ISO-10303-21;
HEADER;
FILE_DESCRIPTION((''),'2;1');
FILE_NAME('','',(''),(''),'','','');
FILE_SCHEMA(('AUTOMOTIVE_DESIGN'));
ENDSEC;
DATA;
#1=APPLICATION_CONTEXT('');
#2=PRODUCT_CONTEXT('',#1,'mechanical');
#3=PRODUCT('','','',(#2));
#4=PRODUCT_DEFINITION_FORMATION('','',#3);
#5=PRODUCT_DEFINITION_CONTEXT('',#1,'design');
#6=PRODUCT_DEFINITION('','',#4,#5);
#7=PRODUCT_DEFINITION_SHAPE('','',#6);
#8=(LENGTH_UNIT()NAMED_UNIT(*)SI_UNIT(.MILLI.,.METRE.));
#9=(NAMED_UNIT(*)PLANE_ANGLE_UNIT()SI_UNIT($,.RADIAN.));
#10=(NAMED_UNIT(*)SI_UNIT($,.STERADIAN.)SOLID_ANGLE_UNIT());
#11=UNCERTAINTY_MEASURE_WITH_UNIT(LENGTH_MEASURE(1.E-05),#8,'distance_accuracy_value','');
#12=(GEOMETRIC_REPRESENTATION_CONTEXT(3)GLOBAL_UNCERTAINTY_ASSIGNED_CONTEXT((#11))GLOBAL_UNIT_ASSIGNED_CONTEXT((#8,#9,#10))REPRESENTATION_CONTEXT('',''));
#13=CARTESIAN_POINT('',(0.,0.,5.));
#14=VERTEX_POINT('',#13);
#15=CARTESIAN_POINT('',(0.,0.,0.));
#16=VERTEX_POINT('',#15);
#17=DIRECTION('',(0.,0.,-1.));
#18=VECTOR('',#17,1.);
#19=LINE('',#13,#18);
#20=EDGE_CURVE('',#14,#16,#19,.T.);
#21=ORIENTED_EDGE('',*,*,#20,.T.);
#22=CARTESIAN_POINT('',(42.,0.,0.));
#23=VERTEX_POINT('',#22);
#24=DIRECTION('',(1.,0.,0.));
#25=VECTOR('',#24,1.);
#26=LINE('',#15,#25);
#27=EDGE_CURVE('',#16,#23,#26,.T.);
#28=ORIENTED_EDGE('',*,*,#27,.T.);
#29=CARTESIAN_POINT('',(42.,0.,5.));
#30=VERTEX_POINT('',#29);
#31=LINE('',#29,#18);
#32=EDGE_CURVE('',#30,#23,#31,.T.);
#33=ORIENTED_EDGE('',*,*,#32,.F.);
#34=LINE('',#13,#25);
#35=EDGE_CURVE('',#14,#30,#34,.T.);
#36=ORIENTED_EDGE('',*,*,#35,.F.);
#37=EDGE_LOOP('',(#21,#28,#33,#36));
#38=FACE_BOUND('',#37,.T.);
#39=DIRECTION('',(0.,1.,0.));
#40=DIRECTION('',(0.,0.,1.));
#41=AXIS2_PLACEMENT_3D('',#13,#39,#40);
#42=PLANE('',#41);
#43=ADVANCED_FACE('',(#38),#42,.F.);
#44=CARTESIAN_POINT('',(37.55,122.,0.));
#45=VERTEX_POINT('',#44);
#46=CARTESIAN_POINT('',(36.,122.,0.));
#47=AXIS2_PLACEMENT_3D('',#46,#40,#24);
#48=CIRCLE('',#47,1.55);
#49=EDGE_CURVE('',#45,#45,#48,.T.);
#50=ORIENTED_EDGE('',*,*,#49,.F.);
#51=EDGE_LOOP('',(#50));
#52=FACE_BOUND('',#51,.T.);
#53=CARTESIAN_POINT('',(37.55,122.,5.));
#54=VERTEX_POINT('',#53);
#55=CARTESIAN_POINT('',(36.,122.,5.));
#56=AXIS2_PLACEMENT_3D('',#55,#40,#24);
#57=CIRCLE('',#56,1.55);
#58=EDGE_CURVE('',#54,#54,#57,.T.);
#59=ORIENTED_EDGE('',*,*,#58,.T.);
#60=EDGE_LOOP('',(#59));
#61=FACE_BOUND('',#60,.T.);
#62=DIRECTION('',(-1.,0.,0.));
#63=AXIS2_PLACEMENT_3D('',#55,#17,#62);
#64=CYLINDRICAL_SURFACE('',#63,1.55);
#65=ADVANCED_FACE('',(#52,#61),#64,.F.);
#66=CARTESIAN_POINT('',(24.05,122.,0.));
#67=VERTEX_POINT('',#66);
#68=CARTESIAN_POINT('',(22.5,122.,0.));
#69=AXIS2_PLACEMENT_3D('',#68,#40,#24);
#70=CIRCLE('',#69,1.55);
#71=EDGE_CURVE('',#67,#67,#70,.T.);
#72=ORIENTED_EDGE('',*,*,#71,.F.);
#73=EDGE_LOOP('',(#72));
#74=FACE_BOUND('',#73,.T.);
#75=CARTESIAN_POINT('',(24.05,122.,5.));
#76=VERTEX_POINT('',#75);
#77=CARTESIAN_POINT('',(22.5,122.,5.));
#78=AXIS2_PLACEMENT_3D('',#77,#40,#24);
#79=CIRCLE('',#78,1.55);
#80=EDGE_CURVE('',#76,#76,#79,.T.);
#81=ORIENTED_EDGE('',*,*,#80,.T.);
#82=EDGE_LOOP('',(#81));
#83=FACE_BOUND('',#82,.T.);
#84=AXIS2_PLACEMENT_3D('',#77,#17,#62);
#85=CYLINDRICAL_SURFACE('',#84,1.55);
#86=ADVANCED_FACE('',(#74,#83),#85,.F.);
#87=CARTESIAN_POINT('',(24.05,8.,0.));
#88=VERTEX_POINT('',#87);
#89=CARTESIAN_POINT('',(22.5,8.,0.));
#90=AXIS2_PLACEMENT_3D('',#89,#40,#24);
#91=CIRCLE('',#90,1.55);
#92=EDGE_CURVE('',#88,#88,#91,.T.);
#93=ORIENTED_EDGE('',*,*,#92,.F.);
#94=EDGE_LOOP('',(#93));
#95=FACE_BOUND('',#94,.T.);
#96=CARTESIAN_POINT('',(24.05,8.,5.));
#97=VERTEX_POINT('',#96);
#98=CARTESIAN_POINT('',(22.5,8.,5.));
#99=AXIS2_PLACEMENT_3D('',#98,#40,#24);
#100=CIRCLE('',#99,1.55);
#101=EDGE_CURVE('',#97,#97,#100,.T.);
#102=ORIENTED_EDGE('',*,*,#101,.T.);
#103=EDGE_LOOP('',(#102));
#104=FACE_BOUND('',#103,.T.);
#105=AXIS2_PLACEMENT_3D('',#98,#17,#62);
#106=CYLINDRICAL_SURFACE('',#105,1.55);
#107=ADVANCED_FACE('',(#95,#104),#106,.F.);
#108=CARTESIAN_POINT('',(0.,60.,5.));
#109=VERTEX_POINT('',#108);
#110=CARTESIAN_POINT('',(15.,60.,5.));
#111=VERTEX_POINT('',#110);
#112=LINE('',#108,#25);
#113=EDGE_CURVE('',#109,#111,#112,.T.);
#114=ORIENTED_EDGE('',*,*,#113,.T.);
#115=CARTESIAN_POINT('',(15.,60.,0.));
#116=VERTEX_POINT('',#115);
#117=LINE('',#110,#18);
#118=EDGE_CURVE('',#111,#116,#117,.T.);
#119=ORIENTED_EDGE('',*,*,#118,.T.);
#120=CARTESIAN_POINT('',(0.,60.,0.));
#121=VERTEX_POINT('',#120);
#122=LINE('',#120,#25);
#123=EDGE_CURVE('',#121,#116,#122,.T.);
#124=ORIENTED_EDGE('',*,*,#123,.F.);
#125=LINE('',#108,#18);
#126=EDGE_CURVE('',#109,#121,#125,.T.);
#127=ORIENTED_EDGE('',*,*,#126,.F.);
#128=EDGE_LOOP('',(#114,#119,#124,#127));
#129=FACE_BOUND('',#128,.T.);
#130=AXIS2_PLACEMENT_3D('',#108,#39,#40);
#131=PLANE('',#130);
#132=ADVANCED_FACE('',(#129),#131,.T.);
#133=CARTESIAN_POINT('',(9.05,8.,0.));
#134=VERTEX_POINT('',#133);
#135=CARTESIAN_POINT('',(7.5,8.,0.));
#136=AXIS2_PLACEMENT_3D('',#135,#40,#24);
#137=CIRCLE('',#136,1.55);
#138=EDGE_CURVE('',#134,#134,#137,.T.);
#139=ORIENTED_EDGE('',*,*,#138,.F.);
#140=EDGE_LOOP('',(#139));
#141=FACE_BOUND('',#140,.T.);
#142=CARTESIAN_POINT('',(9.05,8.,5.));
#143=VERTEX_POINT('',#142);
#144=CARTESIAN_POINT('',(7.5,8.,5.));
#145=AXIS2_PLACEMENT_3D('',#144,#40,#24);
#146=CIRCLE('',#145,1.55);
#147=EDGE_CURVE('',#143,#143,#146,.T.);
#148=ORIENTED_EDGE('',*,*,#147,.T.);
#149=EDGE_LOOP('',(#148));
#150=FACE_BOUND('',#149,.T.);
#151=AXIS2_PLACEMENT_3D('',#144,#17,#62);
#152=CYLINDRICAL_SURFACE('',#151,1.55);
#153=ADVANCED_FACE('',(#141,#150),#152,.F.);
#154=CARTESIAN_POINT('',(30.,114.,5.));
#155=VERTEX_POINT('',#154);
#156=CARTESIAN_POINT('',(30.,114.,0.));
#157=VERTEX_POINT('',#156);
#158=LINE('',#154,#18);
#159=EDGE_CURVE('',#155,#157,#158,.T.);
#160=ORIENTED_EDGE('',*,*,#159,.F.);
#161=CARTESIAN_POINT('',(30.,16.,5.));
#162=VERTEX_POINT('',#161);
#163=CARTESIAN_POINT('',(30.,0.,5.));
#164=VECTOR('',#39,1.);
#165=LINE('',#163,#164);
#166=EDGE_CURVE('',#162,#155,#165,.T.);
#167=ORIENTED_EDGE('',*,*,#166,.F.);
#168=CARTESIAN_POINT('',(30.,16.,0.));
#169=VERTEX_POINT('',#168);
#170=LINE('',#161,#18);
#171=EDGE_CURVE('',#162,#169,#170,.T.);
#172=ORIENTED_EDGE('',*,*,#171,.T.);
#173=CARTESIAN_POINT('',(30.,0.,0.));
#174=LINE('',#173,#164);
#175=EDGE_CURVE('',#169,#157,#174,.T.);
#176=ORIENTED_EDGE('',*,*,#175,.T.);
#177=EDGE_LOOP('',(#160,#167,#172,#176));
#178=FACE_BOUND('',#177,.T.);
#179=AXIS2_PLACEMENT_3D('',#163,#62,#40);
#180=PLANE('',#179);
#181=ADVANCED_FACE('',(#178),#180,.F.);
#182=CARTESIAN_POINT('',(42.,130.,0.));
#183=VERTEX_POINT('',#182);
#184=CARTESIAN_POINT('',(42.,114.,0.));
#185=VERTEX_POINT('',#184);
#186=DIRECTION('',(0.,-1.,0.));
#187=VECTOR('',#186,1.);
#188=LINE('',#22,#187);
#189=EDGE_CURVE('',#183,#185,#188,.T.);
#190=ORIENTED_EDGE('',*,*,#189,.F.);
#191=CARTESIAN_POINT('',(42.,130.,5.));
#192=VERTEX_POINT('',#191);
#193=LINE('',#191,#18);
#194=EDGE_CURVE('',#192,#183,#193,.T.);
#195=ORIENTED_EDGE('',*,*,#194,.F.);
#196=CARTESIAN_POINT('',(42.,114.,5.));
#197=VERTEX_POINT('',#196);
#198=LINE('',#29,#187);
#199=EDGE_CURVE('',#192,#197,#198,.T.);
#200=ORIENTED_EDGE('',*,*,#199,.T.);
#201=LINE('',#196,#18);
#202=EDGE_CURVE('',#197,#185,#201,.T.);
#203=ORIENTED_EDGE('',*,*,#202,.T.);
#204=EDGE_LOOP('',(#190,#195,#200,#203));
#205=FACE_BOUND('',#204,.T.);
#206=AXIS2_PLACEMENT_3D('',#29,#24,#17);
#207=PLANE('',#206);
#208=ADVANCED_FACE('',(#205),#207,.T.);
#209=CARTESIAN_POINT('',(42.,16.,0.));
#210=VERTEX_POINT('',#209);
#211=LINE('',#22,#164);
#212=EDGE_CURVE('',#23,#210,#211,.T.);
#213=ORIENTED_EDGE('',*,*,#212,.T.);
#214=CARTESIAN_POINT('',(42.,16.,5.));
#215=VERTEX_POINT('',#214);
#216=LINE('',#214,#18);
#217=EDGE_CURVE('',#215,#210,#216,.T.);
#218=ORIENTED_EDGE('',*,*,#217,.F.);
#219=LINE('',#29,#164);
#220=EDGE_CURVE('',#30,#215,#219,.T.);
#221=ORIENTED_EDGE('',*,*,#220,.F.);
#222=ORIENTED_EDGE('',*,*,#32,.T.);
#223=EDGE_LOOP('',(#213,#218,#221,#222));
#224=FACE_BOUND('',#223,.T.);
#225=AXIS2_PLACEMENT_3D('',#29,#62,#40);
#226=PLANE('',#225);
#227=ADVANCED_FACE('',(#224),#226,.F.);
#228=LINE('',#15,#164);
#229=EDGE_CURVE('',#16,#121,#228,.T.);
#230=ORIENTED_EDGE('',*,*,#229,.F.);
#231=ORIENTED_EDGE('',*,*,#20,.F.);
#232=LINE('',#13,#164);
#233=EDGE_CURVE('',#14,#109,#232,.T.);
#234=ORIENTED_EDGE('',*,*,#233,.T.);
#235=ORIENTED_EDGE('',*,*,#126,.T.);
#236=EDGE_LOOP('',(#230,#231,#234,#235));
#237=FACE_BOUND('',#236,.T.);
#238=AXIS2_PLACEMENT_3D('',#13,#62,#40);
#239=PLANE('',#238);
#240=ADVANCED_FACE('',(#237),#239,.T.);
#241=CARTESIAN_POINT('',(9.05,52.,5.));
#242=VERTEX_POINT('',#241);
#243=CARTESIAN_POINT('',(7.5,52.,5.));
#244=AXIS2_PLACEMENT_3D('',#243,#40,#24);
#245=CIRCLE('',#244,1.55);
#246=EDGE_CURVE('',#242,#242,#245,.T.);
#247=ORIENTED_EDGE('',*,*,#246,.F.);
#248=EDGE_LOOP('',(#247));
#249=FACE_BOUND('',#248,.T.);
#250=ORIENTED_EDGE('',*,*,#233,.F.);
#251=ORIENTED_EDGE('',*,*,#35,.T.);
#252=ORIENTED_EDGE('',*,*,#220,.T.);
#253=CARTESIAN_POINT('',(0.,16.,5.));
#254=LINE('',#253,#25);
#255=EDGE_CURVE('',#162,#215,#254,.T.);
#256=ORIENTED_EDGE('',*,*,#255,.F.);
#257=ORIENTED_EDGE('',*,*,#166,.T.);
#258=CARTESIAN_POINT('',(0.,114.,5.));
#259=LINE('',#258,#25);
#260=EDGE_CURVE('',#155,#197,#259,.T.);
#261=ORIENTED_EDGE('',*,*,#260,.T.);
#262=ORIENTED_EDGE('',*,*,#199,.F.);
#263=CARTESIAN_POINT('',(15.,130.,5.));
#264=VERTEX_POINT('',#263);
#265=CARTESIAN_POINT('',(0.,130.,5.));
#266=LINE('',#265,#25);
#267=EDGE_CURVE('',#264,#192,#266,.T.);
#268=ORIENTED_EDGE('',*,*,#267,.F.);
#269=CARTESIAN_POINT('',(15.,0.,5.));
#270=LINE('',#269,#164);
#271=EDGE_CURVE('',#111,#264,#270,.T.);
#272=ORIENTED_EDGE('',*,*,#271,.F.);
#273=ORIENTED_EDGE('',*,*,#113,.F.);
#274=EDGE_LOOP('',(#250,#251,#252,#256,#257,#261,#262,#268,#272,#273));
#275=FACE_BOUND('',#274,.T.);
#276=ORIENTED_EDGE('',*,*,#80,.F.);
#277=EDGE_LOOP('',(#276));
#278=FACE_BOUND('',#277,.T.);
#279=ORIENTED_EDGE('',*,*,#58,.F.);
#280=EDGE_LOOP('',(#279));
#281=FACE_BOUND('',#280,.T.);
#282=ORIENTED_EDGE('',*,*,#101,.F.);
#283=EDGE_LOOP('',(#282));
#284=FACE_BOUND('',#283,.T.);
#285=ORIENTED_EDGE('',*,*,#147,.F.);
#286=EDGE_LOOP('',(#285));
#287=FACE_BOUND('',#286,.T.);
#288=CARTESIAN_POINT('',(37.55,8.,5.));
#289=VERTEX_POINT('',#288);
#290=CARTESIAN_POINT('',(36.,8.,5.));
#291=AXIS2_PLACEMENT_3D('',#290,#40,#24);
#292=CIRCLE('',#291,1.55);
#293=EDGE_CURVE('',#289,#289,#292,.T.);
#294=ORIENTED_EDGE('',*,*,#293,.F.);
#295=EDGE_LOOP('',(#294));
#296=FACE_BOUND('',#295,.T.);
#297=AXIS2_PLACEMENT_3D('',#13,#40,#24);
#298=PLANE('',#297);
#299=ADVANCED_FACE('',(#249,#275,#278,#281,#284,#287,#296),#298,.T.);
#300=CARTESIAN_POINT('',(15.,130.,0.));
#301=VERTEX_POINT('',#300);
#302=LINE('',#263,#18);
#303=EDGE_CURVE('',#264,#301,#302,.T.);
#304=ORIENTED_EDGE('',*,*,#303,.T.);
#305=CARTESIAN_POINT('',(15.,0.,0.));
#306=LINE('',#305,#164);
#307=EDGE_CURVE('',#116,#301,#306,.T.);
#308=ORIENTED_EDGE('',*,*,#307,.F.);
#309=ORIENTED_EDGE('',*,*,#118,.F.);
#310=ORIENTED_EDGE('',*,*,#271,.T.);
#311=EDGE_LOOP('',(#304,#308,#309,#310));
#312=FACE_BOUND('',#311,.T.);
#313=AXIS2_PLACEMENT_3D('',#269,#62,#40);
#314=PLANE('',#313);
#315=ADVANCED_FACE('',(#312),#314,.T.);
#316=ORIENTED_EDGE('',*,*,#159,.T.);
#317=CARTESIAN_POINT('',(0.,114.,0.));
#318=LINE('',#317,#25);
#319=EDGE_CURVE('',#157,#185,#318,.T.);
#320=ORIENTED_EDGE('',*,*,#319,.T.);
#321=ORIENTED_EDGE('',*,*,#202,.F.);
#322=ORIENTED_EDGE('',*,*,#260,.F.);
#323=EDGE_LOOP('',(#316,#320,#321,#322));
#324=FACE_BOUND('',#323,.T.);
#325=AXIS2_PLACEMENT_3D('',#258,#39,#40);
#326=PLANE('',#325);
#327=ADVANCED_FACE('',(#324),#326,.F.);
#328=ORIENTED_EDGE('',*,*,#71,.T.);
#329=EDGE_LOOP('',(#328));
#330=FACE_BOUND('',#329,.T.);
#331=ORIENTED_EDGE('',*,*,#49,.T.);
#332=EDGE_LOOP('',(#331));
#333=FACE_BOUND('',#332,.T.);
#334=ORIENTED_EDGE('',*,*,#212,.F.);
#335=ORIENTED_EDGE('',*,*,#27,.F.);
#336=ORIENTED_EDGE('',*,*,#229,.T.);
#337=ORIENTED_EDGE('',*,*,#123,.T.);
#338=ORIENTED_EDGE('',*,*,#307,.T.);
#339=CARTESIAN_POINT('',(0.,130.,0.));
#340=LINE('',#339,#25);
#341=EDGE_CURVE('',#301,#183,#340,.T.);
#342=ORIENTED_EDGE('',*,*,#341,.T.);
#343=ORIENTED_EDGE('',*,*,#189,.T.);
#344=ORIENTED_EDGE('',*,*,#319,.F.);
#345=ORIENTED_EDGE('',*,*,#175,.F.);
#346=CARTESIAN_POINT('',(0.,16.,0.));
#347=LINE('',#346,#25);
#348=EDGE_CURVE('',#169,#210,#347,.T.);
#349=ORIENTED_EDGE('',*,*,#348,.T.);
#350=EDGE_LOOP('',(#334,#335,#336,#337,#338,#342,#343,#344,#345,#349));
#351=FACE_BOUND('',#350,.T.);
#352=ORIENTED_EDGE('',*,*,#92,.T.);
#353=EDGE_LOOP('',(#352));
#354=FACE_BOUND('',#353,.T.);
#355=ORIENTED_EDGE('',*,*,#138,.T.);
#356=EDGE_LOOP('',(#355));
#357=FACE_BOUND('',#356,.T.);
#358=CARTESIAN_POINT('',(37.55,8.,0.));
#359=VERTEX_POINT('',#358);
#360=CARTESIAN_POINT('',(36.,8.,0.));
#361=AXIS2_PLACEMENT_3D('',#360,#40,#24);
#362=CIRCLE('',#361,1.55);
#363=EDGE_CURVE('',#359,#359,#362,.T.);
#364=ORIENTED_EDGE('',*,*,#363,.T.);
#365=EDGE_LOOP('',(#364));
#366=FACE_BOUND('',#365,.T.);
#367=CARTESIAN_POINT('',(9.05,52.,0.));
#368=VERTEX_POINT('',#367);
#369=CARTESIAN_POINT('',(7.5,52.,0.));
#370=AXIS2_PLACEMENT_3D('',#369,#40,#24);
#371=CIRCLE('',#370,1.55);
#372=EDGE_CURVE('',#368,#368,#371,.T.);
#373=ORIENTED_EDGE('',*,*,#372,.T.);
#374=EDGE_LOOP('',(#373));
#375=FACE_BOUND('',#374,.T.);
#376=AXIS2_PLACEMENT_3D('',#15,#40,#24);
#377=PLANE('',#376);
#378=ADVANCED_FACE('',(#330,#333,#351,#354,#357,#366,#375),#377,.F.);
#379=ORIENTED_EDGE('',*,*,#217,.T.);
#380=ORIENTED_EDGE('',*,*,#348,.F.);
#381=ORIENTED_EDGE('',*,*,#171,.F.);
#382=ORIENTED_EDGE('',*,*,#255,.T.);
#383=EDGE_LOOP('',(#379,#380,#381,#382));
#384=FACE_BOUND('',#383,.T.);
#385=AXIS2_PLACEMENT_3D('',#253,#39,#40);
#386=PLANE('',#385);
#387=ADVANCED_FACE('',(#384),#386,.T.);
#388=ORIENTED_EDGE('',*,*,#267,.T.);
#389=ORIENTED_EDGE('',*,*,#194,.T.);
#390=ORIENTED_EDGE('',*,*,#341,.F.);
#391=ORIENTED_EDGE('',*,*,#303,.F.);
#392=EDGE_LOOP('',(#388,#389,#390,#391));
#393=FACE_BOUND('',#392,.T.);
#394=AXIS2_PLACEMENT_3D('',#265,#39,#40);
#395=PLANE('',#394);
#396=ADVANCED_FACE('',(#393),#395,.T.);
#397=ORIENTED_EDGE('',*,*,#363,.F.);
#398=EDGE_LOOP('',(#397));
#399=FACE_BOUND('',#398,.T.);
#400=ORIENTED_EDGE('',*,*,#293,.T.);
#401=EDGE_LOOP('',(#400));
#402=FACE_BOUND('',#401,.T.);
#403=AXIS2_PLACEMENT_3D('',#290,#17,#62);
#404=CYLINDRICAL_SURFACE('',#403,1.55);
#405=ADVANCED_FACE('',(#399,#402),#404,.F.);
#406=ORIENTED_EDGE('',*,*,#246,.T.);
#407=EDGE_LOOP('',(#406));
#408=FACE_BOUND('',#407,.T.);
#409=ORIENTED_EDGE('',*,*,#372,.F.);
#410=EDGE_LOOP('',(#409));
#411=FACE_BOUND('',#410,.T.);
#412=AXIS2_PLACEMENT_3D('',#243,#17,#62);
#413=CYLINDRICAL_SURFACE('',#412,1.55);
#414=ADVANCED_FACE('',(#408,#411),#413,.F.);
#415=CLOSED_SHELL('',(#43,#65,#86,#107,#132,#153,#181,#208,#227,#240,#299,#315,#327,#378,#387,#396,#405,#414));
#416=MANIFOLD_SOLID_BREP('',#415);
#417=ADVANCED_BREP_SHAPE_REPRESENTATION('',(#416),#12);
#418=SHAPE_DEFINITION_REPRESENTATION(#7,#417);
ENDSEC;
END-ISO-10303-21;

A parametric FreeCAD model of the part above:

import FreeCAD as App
import Part
import Sketcher

doc = App.newDocument("Part")
body = doc.addObject("PartDesign::Body", "Body")

# Sketch on XY plane
sketch1 = body.newObject("Sketcher::SketchObject", "Sketch")
sketch1.AttachmentSupport = (doc.getObject("XY_Plane"), [""])
sketch1.MapMode = "FlatFace"
sketch1.addGeometry([
    Part.LineSegment(App.Vector(0, 60, 0), App.Vector(0, 0, 0)),  # 0
    Part.LineSegment(App.Vector(0, 0, 0), App.Vector(42, 0, 0)),  # 1
    Part.LineSegment(App.Vector(42, 0, 0), App.Vector(42, 16, 0)),  # 2
    Part.LineSegment(App.Vector(42, 16, 0), App.Vector(30, 16, 0)),  # 3
    Part.LineSegment(App.Vector(30, 16, 0), App.Vector(30, 114, 0)),  # 4
    Part.LineSegment(App.Vector(30, 114, 0), App.Vector(42, 114, 0)),  # 5
    Part.LineSegment(App.Vector(42, 114, 0), App.Vector(42, 130, 0)),  # 6
    Part.LineSegment(App.Vector(42, 130, 0), App.Vector(15, 130, 0)),  # 7
    Part.LineSegment(App.Vector(15, 130, 0), App.Vector(15, 60, 0)),  # 8
    Part.LineSegment(App.Vector(15, 60, 0), App.Vector(0, 60, 0)),  # 9
    Part.Circle(App.Vector(7.5, 8, 0), App.Vector(0, 0, 1), 1.55),  # 10
    Part.Circle(App.Vector(7.5, 52, 0), App.Vector(0, 0, 1), 1.55),  # 11
    Part.Circle(App.Vector(22.5, 122, 0), App.Vector(0, 0, 1), 1.55),  # 12
    Part.Circle(App.Vector(22.5, 8, 0), App.Vector(0, 0, 1), 1.55),  # 13
    Part.Circle(App.Vector(36, 8, 0), App.Vector(0, 0, 1), 1.55),  # 14
    Part.Circle(App.Vector(36, 122, 0), App.Vector(0, 0, 1), 1.55),  # 15
], False)
sketch1.addConstraint([
    Sketcher.Constraint("Coincident", 0, 2, 1, 1),
    Sketcher.Constraint("Coincident", 1, 2, 2, 1),
    Sketcher.Constraint("Coincident", 2, 2, 3, 1),
    Sketcher.Constraint("Coincident", 3, 2, 4, 1),
    Sketcher.Constraint("Coincident", 4, 2, 5, 1),
    Sketcher.Constraint("Coincident", 5, 2, 6, 1),
    Sketcher.Constraint("Coincident", 6, 2, 7, 1),
    Sketcher.Constraint("Coincident", 7, 2, 8, 1),
    Sketcher.Constraint("Coincident", 8, 2, 9, 1),
    Sketcher.Constraint("Coincident", 9, 2, 0, 1),
    Sketcher.Constraint("Vertical", 0),
    Sketcher.Constraint("Horizontal", 1),
    Sketcher.Constraint("Vertical", 2),
    Sketcher.Constraint("Horizontal", 3),
    Sketcher.Constraint("Vertical", 4),
    Sketcher.Constraint("Horizontal", 5),
    Sketcher.Constraint("Vertical", 6),
    Sketcher.Constraint("Horizontal", 7),
    Sketcher.Constraint("Vertical", 8),
    Sketcher.Constraint("Horizontal", 9),
    Sketcher.Constraint("Coincident", 0, 2, -1, 1),
    Sketcher.Constraint("Equal", 10, 11),
    Sketcher.Constraint("Equal", 11, 12),
    Sketcher.Constraint("Equal", 12, 13),
    Sketcher.Constraint("Equal", 13, 14),
    Sketcher.Constraint("Equal", 14, 15),
    Sketcher.Constraint("Horizontal", 10, 3, 13, 3),
    Sketcher.Constraint("Horizontal", 13, 3, 14, 3),
    Sketcher.Constraint("Horizontal", 12, 3, 15, 3),
    Sketcher.Constraint("Vertical", 10, 3, 11, 3),
    Sketcher.Constraint("Vertical", 12, 3, 13, 3),
    Sketcher.Constraint("Vertical", 14, 3, 15, 3),
    Sketcher.Constraint("Vertical", 2, 2, 5, 2),
    Sketcher.Constraint("Equal", 2, 6),
    Sketcher.Constraint("Diameter", 10, 3.1),
    Sketcher.Constraint("DistanceX", 1, 1, 1, 2, 42.0),
    Sketcher.Constraint("DistanceX", 3, 2, 3, 1, 12.0),
    Sketcher.Constraint("DistanceX", 7, 2, 7, 1, 27.0),
    Sketcher.Constraint("DistanceY", 0, 2, 0, 1, 60.0),
    Sketcher.Constraint("DistanceY", 2, 1, 2, 2, 16.0),
    Sketcher.Constraint("DistanceY", 4, 1, 4, 2, 98.0),
    Sketcher.Constraint("DistanceY", -1, 1, 10, 3, 8.0),
    Sketcher.Constraint("DistanceY", -1, 1, 11, 3, 52.0),
    Sketcher.Constraint("DistanceY", -1, 1, 12, 3, 122.0),
    Sketcher.Constraint("DistanceX", -1, 1, 14, 3, 36.0),
    Sketcher.Constraint("DistanceX", 11, 3, 12, 3, 15.0),
    Sketcher.Constraint("DistanceX", -1, 1, 10, 3, 7.5),
])
pad1 = body.newObject("PartDesign::Pad", "Pad")
pad1.Profile = sketch1
pad1.Length = 5

doc.recompute()
